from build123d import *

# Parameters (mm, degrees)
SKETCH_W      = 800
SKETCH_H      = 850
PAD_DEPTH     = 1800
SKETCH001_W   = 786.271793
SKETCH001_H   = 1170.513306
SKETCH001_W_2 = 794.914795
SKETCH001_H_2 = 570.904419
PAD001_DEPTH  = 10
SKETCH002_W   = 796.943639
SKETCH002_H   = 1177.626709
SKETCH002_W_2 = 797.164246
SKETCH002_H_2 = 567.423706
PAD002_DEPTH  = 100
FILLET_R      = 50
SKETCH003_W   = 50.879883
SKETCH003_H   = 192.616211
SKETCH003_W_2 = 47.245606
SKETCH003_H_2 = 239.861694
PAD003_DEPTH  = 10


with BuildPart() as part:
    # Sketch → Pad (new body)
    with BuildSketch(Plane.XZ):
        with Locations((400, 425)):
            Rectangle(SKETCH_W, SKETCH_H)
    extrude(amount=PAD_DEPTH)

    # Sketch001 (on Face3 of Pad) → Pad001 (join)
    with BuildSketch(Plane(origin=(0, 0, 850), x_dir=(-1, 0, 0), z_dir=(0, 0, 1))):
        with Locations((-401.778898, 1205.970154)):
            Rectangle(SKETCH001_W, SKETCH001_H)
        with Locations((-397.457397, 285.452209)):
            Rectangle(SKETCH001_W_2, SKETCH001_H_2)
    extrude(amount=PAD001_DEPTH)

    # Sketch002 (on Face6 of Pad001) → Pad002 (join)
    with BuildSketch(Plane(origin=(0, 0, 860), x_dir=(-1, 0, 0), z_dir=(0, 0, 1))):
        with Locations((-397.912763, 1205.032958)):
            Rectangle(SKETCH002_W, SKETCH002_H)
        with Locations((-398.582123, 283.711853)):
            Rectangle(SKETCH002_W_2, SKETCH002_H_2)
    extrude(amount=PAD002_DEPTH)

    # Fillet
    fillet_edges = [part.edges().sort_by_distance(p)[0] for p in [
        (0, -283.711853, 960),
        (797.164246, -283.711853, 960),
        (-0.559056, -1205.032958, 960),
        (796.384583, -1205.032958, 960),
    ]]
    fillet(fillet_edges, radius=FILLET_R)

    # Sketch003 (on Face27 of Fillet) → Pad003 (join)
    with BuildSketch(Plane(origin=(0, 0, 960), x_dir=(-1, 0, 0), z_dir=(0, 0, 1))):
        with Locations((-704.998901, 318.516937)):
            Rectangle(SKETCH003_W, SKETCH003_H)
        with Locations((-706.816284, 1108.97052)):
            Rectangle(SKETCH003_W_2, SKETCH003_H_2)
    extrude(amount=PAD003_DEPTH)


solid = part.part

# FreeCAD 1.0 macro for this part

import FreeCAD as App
import Part
import Sketcher
from FreeCAD import Vector
Q = App.Units.Quantity


def edges_at(feature, points):
    """Names of the edges that pass closest to the given points."""
    edges = feature.Shape.Edges
    near = lambda p: min(range(len(edges)), key=lambda i: edges[i].distToShape(Part.Vertex(*p))[0])
    return sorted({f"Edge{near(p) + 1}" for p in points})


def add_polygon(sketch, points):
    """Adds a closed chain of lines whose ends are joined by coincident constraints."""
    first, n = sketch.GeometryCount, len(points)
    for a, b in zip(points, points[1:] + points[:1]):
        sketch.addGeometry(Part.LineSegment(App.Vector(*a, 0), App.Vector(*b, 0)), False)
    for i in range(n):
        sketch.addConstraint(Sketcher.Constraint("Coincident", first + i, 2, first + (i + 1) % n, 1))

doc = App.newDocument("Part")
params = doc.addObject("Spreadsheet::Sheet", "Params")
for row, (alias, value) in enumerate([
    ("sketch1_width", "800 mm"),
    ("sketch1_height", "850 mm"),
    ("pad1_length", "1800 mm"),
    ("pad2_length", "10 mm"),
    ("pad3_length", "100 mm"),
    ("fillet_radius", "50 mm"),
    ("pad4_length", "10 mm"),
], start=1):
    params.set(f"A{row}", alias)
    params.set(f"B{row}", "=" + value)
    params.setAlias(f"B{row}", alias)

body = doc.addObject("PartDesign::Body", "Body")

sketch1 = body.newObject("Sketcher::SketchObject", "Sketch")
sketch1.AttachmentSupport = (doc.getObject("XZ_Plane"), [""])
sketch1.MapMode = "FlatFace"
add_polygon(sketch1, [(0, 850), (0, 0), (800, 0), (800, 850)])
sketch1.addConstraint([
    Sketcher.Constraint("Vertical", 0),
    Sketcher.Constraint("Horizontal", 1),
    Sketcher.Constraint("Vertical", 2),
    Sketcher.Constraint("Horizontal", 3),
    Sketcher.Constraint("Coincident", 0, 2, -1, 1),
    Sketcher.Constraint("DistanceX", 1, 1, 1, 2, Q("800 mm")),
    Sketcher.Constraint("DistanceY", 0, 2, 0, 1, Q("850 mm")),
])
sketch1.setExpression("Constraints[9]", "Params.sketch1_width")
sketch1.setExpression("Constraints[10]", "Params.sketch1_height")
pad1 = body.newObject("PartDesign::Pad", "Pad")
pad1.Profile = sketch1
pad1.setExpression("Length", "Params.pad1_length")

sketch2 = body.newObject("Sketcher::SketchObject", "Sketch001")
sketch2.AttachmentSupport = (doc.getObject("XY_Plane"), [""])
sketch2.MapMode = "FlatFace"
sketch2.AttachmentOffset = App.Placement(Vector(0, 0, 850), App.Rotation())
add_polygon(sketch2, [(795, -1791), (795, -621), (9, -621), (9, -1791)])
add_polygon(sketch2, [(795, -571), (795, 0), (0, 0), (0, -571)])
sketch2.addConstraint([
    Sketcher.Constraint("Vertical", 0),
    Sketcher.Constraint("Horizontal", 1),
    Sketcher.Constraint("Vertical", 2),
    Sketcher.Constraint("Horizontal", 3),
    Sketcher.Constraint("Vertical", 4),
    Sketcher.Constraint("Horizontal", 5),
    Sketcher.Constraint("Vertical", 6),
    Sketcher.Constraint("Horizontal", 7),
    Sketcher.Constraint("Coincident", 5, 2, -1, 1),
    Sketcher.Constraint("Vertical", 3, 2, 4, 2),
    Sketcher.Constraint("DistanceX", -1, 1, 1, 2, Q("8.643002 mm")),
    Sketcher.Constraint("DistanceY", 4, 1, 4, 2, Q("570.904419 mm")),
    Sketcher.Constraint("DistanceY", 0, 2, -1, 1, Q("620.713501 mm")),
    Sketcher.Constraint("DistanceX", 1, 2, 1, 1, Q("786.271793 mm")),
    Sketcher.Constraint("DistanceY", 0, 1, 0, 2, Q("1170.513306 mm")),
])
pad2 = body.newObject("PartDesign::Pad", "Pad001")
pad2.Profile = sketch2
pad2.setExpression("Length", "Params.pad2_length")

sketch3 = body.newObject("Sketcher::SketchObject", "Sketch002")
sketch3.AttachmentSupport = (doc.getObject("XY_Plane"), [""])
sketch3.MapMode = "FlatFace"
sketch3.AttachmentOffset = App.Placement(Vector(0, 0, 860), App.Rotation())
add_polygon(sketch3, [(796, -1794), (796, -616), (-1, -616), (-1, -1794)])
add_polygon(sketch3, [(797, -567), (797, 0), (0, 0), (0, -567)])
sketch3.addConstraint([
    Sketcher.Constraint("Vertical", 0),
    Sketcher.Constraint("Horizontal", 1),
    Sketcher.Constraint("Vertical", 2),
    Sketcher.Constraint("Horizontal", 3),
    Sketcher.Constraint("Vertical", 4),
    Sketcher.Constraint("Horizontal", 5),
    Sketcher.Constraint("Vertical", 6),
    Sketcher.Constraint("Horizontal", 7),
    Sketcher.Constraint("Coincident", 5, 2, -1, 1),
    Sketcher.Constraint("DistanceX", 1, 2, 1, 1, Q("796.943639 mm")),
    Sketcher.Constraint("DistanceY", 0, 1, 0, 2, Q("1177.626709 mm")),
    Sketcher.Constraint("DistanceX", 5, 2, 5, 1, Q("797.164246 mm")),
    Sketcher.Constraint("DistanceY", 4, 1, 4, 2, Q("567.423706 mm")),
    Sketcher.Constraint("DistanceX", -1, 1, 0, 2, Q("796.384582 mm")),
    Sketcher.Constraint("DistanceY", 0, 2, -1, 1, Q("616.219603 mm")),
])
pad3 = body.newObject("PartDesign::Pad", "Pad002")
pad3.Profile = sketch3
pad3.setExpression("Length", "Params.pad3_length")
doc.recompute()

fillet = body.newObject("PartDesign::Fillet", "Fillet")
fillet.Base = (pad3, edges_at(pad3, [
    (0, -283.712, 960),
    (797.164, -283.712, 960),
    (-0.559, -1205.033, 960),
    (796.385, -1205.033, 960),
]))
fillet.setExpression("Radius", "Params.fillet_radius")

sketch4 = body.newObject("Sketcher::SketchObject", "Sketch003")
sketch4.AttachmentSupport = (doc.getObject("XY_Plane"), [""])
sketch4.MapMode = "FlatFace"
sketch4.AttachmentOffset = App.Placement(Vector(0, 0, 960), App.Rotation())
add_polygon(sketch4, [(730, -415), (730, -222), (680, -222), (680, -415)])
add_polygon(sketch4, [(730, -1229), (730, -989), (683, -989), (683, -1229)])
sketch4.addConstraint([
    Sketcher.Constraint("Vertical", 0),
    Sketcher.Constraint("Horizontal", 1),
    Sketcher.Constraint("Vertical", 2),
    Sketcher.Constraint("Horizontal", 3),
    Sketcher.Constraint("Vertical", 4),
    Sketcher.Constraint("Horizontal", 5),
    Sketcher.Constraint("Vertical", 6),
    Sketcher.Constraint("Horizontal", 7),
    Sketcher.Constraint("DistanceY", 0, 1, 0, 2, Q("192.616211 mm")),
    Sketcher.Constraint("DistanceX", 1, 2, 1, 1, Q("50.879883 mm")),
    Sketcher.Constraint("DistanceX", 5, 2, 5, 1, Q("47.245606 mm")),
    Sketcher.Constraint("DistanceY", 4, 1, 4, 2, Q("239.861694 mm")),
    Sketcher.Constraint("DistanceY", 0, 2, -1, 1, Q("222.208832 mm")),
    Sketcher.Constraint("DistanceX", -1, 1, 1, 2, Q("679.55896 mm")),
    Sketcher.Constraint("DistanceX", -1, 1, 5, 2, Q("683.193481 mm")),
    Sketcher.Constraint("DistanceY", 4, 2, 3, 2, Q("574.21463 mm")),
])
pad4 = body.newObject("PartDesign::Pad", "Pad003")
pad4.Profile = sketch4
pad4.setExpression("Length", "Params.pad4_length")

doc.recompute()
